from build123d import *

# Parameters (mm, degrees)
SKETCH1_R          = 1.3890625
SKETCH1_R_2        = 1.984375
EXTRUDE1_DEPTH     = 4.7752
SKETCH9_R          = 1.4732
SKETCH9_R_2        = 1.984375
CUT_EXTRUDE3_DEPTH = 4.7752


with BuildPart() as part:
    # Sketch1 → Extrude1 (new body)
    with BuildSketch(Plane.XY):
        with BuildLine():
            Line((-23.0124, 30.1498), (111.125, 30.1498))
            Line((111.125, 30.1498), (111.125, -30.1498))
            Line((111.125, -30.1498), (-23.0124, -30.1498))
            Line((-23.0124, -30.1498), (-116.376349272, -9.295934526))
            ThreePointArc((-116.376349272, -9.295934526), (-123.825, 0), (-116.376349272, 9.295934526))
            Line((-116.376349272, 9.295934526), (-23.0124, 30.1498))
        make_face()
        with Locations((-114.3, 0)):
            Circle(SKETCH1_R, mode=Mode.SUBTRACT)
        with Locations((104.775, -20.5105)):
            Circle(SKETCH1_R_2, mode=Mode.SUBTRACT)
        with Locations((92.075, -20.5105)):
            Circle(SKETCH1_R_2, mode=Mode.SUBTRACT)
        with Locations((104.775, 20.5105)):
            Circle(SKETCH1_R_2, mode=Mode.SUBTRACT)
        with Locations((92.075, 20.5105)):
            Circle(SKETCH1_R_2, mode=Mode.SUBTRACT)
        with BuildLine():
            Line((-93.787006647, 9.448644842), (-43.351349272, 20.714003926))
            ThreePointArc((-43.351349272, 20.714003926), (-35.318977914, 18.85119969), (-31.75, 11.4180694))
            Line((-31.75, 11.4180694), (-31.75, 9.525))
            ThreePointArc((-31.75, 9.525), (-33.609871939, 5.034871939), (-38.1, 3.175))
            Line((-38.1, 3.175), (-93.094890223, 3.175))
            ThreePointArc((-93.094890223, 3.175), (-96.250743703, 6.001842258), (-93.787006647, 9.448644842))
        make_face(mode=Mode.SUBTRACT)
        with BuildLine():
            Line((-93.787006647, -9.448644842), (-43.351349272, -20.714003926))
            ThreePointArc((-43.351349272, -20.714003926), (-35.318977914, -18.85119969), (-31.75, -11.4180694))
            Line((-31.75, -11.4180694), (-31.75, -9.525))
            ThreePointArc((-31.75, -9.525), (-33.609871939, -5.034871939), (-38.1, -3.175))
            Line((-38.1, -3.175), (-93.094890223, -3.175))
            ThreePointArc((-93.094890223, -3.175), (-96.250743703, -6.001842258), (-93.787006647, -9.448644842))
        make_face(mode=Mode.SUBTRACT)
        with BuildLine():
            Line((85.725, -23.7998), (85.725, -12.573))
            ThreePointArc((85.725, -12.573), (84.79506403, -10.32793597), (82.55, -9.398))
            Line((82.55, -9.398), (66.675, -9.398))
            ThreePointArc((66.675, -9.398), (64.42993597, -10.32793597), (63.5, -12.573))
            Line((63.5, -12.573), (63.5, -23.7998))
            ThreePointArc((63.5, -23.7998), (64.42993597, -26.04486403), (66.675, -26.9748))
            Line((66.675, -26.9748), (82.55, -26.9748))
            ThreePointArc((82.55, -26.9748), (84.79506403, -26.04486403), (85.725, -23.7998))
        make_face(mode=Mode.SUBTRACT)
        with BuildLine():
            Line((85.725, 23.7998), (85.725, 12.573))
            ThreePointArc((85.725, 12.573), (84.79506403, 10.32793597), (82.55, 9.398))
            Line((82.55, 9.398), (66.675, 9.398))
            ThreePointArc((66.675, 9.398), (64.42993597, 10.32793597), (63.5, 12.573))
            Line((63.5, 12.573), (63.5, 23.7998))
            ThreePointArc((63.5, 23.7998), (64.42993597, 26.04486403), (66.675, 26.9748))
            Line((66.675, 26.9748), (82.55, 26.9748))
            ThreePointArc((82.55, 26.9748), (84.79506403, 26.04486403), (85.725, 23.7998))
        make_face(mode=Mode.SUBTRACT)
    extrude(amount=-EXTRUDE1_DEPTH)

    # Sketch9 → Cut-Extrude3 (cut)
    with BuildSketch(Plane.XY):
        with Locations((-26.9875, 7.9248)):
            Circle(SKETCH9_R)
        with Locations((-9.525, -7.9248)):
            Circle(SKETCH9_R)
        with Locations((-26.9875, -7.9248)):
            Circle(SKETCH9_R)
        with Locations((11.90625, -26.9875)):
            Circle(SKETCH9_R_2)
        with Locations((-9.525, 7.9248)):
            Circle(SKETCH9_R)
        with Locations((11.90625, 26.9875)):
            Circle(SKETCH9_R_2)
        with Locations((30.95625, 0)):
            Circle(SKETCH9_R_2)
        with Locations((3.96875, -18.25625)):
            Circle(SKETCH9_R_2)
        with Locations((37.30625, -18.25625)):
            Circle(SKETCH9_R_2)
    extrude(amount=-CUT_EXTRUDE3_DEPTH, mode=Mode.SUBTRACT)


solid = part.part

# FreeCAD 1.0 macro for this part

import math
import FreeCAD as App
import Part
import Sketcher
Q = App.Units.Quantity

doc = App.newDocument("Part")
body = doc.addObject("PartDesign::Body", "Body")

# Sketch on XY plane
sketch1 = body.newObject("Sketcher::SketchObject", "Sketch")
sketch1.AttachmentSupport = (doc.getObject("XY_Plane"), [""])
sketch1.MapMode = "FlatFace"
sketch1.addGeometry([
    Part.LineSegment(App.Vector(111.125, 30.1498, 0), App.Vector(-23.0124, 30.1498, 0)),  # 0
    Part.LineSegment(App.Vector(-23.0124, 30.1498, 0), App.Vector(-116.376349, 9.295935, 0)),  # 1
    Part.ArcOfCircle(Part.Circle(App.Vector(-114.3, 0, 0), App.Vector(0, 0, 1), 9.525), math.radians(102.59097), math.radians(257.40903)),  # 2
    Part.LineSegment(App.Vector(-116.376349, -9.295935, 0), App.Vector(-23.0124, -30.1498, 0)),  # 3
    Part.LineSegment(App.Vector(-23.0124, -30.1498, 0), App.Vector(111.125, -30.1498, 0)),  # 4
    Part.LineSegment(App.Vector(111.125, -30.1498, 0), App.Vector(111.125, 30.1498, 0)),  # 5
    Part.Circle(App.Vector(104.775, -20.5105, 0), App.Vector(0, 0, 1), 1.984375),  # 6
    Part.Circle(App.Vector(92.075, -20.5105, 0), App.Vector(0, 0, 1), 1.984375),  # 7
    Part.ArcOfCircle(Part.Circle(App.Vector(82.55, -23.7998, 0), App.Vector(0, 0, 1), 3.175), math.radians(-90), math.radians(0)),  # 8
    Part.LineSegment(App.Vector(82.55, -26.9748, 0), App.Vector(66.675, -26.9748, 0)),  # 9
    Part.ArcOfCircle(Part.Circle(App.Vector(66.675, -23.7998, 0), App.Vector(0, 0, 1), 3.175), math.radians(-180), math.radians(-90)),  # 10
    Part.LineSegment(App.Vector(63.5, -23.7998, 0), App.Vector(63.5, -12.573, 0)),  # 11
    Part.ArcOfCircle(Part.Circle(App.Vector(66.675, -12.573, 0), App.Vector(0, 0, 1), 3.175), math.radians(90), math.radians(180)),  # 12
    Part.LineSegment(App.Vector(66.675, -9.398, 0), App.Vector(82.55, -9.398, 0)),  # 13
    Part.ArcOfCircle(Part.Circle(App.Vector(82.55, -12.573, 0), App.Vector(0, 0, 1), 3.175), math.radians(0), math.radians(90)),  # 14
    Part.LineSegment(App.Vector(85.725, -12.573, 0), App.Vector(85.725, -23.7998, 0)),  # 15
    Part.ArcOfCircle(Part.Circle(App.Vector(-93.09489, -6.35, 0), App.Vector(0, 0, 1), 3.175), math.radians(90), math.radians(257.40903)),  # 16
    Part.LineSegment(App.Vector(-93.09489, -3.175, 0), App.Vector(-38.1, -3.175, 0)),  # 17
    Part.ArcOfCircle(Part.Circle(App.Vector(-38.1, -9.525, 0), App.Vector(0, 0, 1), 6.35), math.radians(0), math.radians(90)),  # 18
    Part.LineSegment(App.Vector(-31.75, -9.525, 0), App.Vector(-31.75, -11.418069, 0)),  # 19
    Part.ArcOfCircle(Part.Circle(App.Vector(-41.275, -11.418069, 0), App.Vector(0, 0, 1), 9.525), math.radians(-102.59097), math.radians(0)),  # 20
    Part.LineSegment(App.Vector(-43.351349, -20.714004, 0), App.Vector(-93.787007, -9.448645, 0)),  # 21
    Part.LineSegment(App.Vector(85.725, 23.7998, 0), App.Vector(85.725, 12.573, 0)),  # 22
    Part.ArcOfCircle(Part.Circle(App.Vector(82.55, 12.573, 0), App.Vector(0, 0, 1), 3.175), math.radians(-90), math.radians(0)),  # 23
    Part.LineSegment(App.Vector(82.55, 9.398, 0), App.Vector(66.675, 9.398, 0)),  # 24
    Part.ArcOfCircle(Part.Circle(App.Vector(66.675, 12.573, 0), App.Vector(0, 0, 1), 3.175), math.radians(-180), math.radians(-90)),  # 25
    Part.LineSegment(App.Vector(63.5, 12.573, 0), App.Vector(63.5, 23.7998, 0)),  # 26
    Part.ArcOfCircle(Part.Circle(App.Vector(66.675, 23.7998, 0), App.Vector(0, 0, 1), 3.175), math.radians(90), math.radians(180)),  # 27
    Part.LineSegment(App.Vector(66.675, 26.9748, 0), App.Vector(82.55, 26.9748, 0)),  # 28
    Part.ArcOfCircle(Part.Circle(App.Vector(82.55, 23.7998, 0), App.Vector(0, 0, 1), 3.175), math.radians(0), math.radians(90)),  # 29
    Part.Circle(App.Vector(104.775, 20.5105, 0), App.Vector(0, 0, 1), 1.984375),  # 30
    Part.Circle(App.Vector(92.075, 20.5105, 0), App.Vector(0, 0, 1), 1.984375),  # 31
    Part.Circle(App.Vector(-114.3, 0, 0), App.Vector(0, 0, 1), 1.389063),  # 32
    Part.LineSegment(App.Vector(-93.787007, 9.448645, 0), App.Vector(-43.351349, 20.714004, 0)),  # 33
    Part.ArcOfCircle(Part.Circle(App.Vector(-41.275, 11.418069, 0), App.Vector(0, 0, 1), 9.525), math.radians(0), math.radians(102.59097)),  # 34
    Part.LineSegment(App.Vector(-31.75, 11.418069, 0), App.Vector(-31.75, 9.525, 0)),  # 35
    Part.ArcOfCircle(Part.Circle(App.Vector(-38.1, 9.525, 0), App.Vector(0, 0, 1), 6.35), math.radians(-90), math.radians(0)),  # 36
    Part.LineSegment(App.Vector(-38.1, 3.175, 0), App.Vector(-93.09489, 3.175, 0)),  # 37
    Part.ArcOfCircle(Part.Circle(App.Vector(-93.09489, 6.35, 0), App.Vector(0, 0, 1), 3.175), math.radians(102.59097), math.radians(270)),  # 38
], False)
sketch1.addConstraint([
    Sketcher.Constraint("Coincident", 0, 2, 1, 1),
    Sketcher.Constraint("Tangent", 1, 2, 2, 1),
    Sketcher.Constraint("Tangent", 2, 2, 3, 1),
    Sketcher.Constraint("Coincident", 3, 2, 4, 1),
    Sketcher.Constraint("Coincident", 4, 2, 5, 1),
    Sketcher.Constraint("Coincident", 5, 2, 0, 1),
    Sketcher.Constraint("Tangent", 8, 1, 9, 1),
    Sketcher.Constraint("Tangent", 9, 2, 10, 2),
    Sketcher.Constraint("Tangent", 10, 1, 11, 1),
    Sketcher.Constraint("Tangent", 11, 2, 12, 2),
    Sketcher.Constraint("Tangent", 12, 1, 13, 1),
    Sketcher.Constraint("Tangent", 13, 2, 14, 2),
    Sketcher.Constraint("Tangent", 14, 1, 15, 1),
    Sketcher.Constraint("Tangent", 15, 2, 8, 2),
    Sketcher.Constraint("Tangent", 16, 1, 17, 1),
    Sketcher.Constraint("Tangent", 17, 2, 18, 2),
    Sketcher.Constraint("Tangent", 18, 1, 19, 1),
    Sketcher.Constraint("Tangent", 19, 2, 20, 2),
    Sketcher.Constraint("Tangent", 20, 1, 21, 1),
    Sketcher.Constraint("Tangent", 21, 2, 16, 2),
    Sketcher.Constraint("Tangent", 22, 2, 23, 2),
    Sketcher.Constraint("Tangent", 23, 1, 24, 1),
    Sketcher.Constraint("Tangent", 24, 2, 25, 2),
    Sketcher.Constraint("Tangent", 25, 1, 26, 1),
    Sketcher.Constraint("Tangent", 26, 2, 27, 2),
    Sketcher.Constraint("Tangent", 27, 1, 28, 1),
    Sketcher.Constraint("Tangent", 28, 2, 29, 2),
    Sketcher.Constraint("Tangent", 29, 1, 22, 1),
    Sketcher.Constraint("Tangent", 33, 2, 34, 2),
    Sketcher.Constraint("Tangent", 34, 1, 35, 1),
    Sketcher.Constraint("Tangent", 35, 2, 36, 2),
    Sketcher.Constraint("Tangent", 36, 1, 37, 1),
    Sketcher.Constraint("Tangent", 37, 2, 38, 2),
    Sketcher.Constraint("Tangent", 38, 1, 33, 1),
    Sketcher.Constraint("Horizontal", 0),
    Sketcher.Constraint("Horizontal", 4),
    Sketcher.Constraint("Vertical", 5),
    Sketcher.Constraint("Horizontal", 9),
    Sketcher.Constraint("Vertical", 11),
    Sketcher.Constraint("Horizontal", 13),
    Sketcher.Constraint("Vertical", 15),
    Sketcher.Constraint("Horizontal", 17),
    Sketcher.Constraint("Vertical", 19),
    Sketcher.Constraint("Vertical", 22),
    Sketcher.Constraint("Horizontal", 24),
    Sketcher.Constraint("Vertical", 26),
    Sketcher.Constraint("Horizontal", 28),
    Sketcher.Constraint("Vertical", 35),
    Sketcher.Constraint("Horizontal", 37),
    Sketcher.Constraint("Coincident", 32, 3, 2, 3),
    Sketcher.Constraint("Equal", 6, 7),
    Sketcher.Constraint("Equal", 8, 10),
    Sketcher.Constraint("Equal", 10, 12),
    Sketcher.Constraint("Equal", 12, 14),
    Sketcher.Constraint("Equal", 14, 16),
    Sketcher.Constraint("Equal", 2, 20),
    Sketcher.Constraint("Equal", 16, 23),
    Sketcher.Constraint("Equal", 23, 25),
    Sketcher.Constraint("Equal", 25, 27),
    Sketcher.Constraint("Equal", 27, 29),
    Sketcher.Constraint("Equal", 7, 30),
    Sketcher.Constraint("Equal", 30, 31),
    Sketcher.Constraint("Equal", 20, 34),
    Sketcher.Constraint("Equal", 18, 36),
    Sketcher.Constraint("Equal", 29, 38),
    Sketcher.Constraint("Symmetric", 14, 3, 23, 3, -1),
    Sketcher.Constraint("Symmetric", 10, 3, 27, 3, -1),
    Sketcher.Constraint("Symmetric", 6, 3, 30, 3, -1),
    Sketcher.Constraint("Symmetric", 7, 3, 31, 3, -1),
    Sketcher.Constraint("Symmetric", 20, 3, 34, 3, -1),
    Sketcher.Constraint("Symmetric", 16, 3, 38, 3, -1),
    Sketcher.Constraint("Symmetric", 1, 2, 2, 2, -1),
    Sketcher.Constraint("Parallel", 3, 21),
    Sketcher.Constraint("Horizontal", 6, 3, 7, 3),
    Sketcher.Constraint("Vertical", 0, 2, 3, 2),
    Sketcher.Constraint("Radius", 18, Q("0.25 in")),
    Sketcher.Constraint("Diameter", 6, Q("0.15625 in")),
    Sketcher.Constraint("Diameter", 32, Q("0.109375 in")),
    Sketcher.Constraint("Radius", 2, Q("0.375 in")),
    Sketcher.Constraint("Radius", 8, Q("0.125 in")),
    Sketcher.Constraint("DistanceX", 10, 3, 7, 3, Q("1 in")),
    Sketcher.Constraint("DistanceX", 2, 3, 18, 3, Q("3 in")),
    Sketcher.Constraint("DistanceX", 2, 3, -1, 1, Q("4.5 in")),
    Sketcher.Constraint("DistanceX", -1, 1, 10, 1, Q("2.5 in")),
    Sketcher.Constraint("DistanceX", 7, 3, 6, 3, Q("0.5 in")),
    Sketcher.Constraint("DistanceY", 16, 3, 38, 3, Q("0.5 in")),
    Sketcher.Constraint("DistanceX", 0, 2, 0, 1, Q("5.281 in")),
    Sketcher.Constraint("DistanceX", 9, 2, 9, 1, Q("0.625 in")),
    Sketcher.Constraint("DistanceY", 5, 1, 5, 2, Q("2.374 in")),
    Sketcher.Constraint("DistanceY", 11, 1, 11, 2, Q("0.442 in")),
    Sketcher.Constraint("DistanceY", 12, 1, -1, 1, Q("0.37 in")),
    Sketcher.Constraint("DistanceX", 6, 3, 4, 2, Q("0.25 in")),
    Sketcher.Constraint("DistanceY", 7, 3, 12, 3, Q("0.3125 in")),
    Sketcher.Constraint("DistanceX", 17, 1, 17, 2, Q("54.99489 mm")),
])
pad1 = body.newObject("PartDesign::Pad", "Pad")
pad1.Profile = sketch1
pad1.Length = Q("0.188 in")
pad1.Reversed = True

# Sketch on XY plane
sketch2 = body.newObject("Sketcher::SketchObject", "Sketch001")
sketch2.AttachmentSupport = (doc.getObject("XY_Plane"), [""])
sketch2.MapMode = "FlatFace"
sketch2.addGeometry([
    Part.Circle(App.Vector(-26.9875, 7.9248, 0), App.Vector(0, 0, 1), 1.4732),  # 0
    Part.Circle(App.Vector(-9.525, -7.9248, 0), App.Vector(0, 0, 1), 1.4732),  # 1
    Part.Circle(App.Vector(-26.9875, -7.9248, 0), App.Vector(0, 0, 1), 1.4732),  # 2
    Part.Circle(App.Vector(11.90625, -26.9875, 0), App.Vector(0, 0, 1), 1.984375),  # 3
    Part.Circle(App.Vector(-9.525, 7.9248, 0), App.Vector(0, 0, 1), 1.4732),  # 4
    Part.Circle(App.Vector(11.90625, 26.9875, 0), App.Vector(0, 0, 1), 1.984375),  # 5
    Part.Circle(App.Vector(30.95625, 0, 0), App.Vector(0, 0, 1), 1.984375),  # 6
    Part.Circle(App.Vector(3.96875, -18.25625, 0), App.Vector(0, 0, 1), 1.984375),  # 7
    Part.Circle(App.Vector(37.30625, -18.25625, 0), App.Vector(0, 0, 1), 1.984375),  # 8
], False)
sketch2.addConstraint([
    Sketcher.Constraint("Equal", 0, 1),
    Sketcher.Constraint("Equal", 1, 2),
    Sketcher.Constraint("Equal", 2, 4),
    Sketcher.Constraint("Equal", 3, 5),
    Sketcher.Constraint("Equal", 5, 6),
    Sketcher.Constraint("Equal", 6, 7),
    Sketcher.Constraint("Equal", 7, 8),
    Sketcher.Constraint("Symmetric", 0, 3, 2, 3, -1),
    Sketcher.Constraint("Symmetric", 1, 3, 4, 3, -1),
    Sketcher.Constraint("Symmetric", 3, 3, 5, 3, -1),
    Sketcher.Constraint("PointOnObject", 6, 3, -1),
    Sketcher.Constraint("Horizontal", 1, 3, 2, 3),
    Sketcher.Constraint("Horizontal", 7, 3, 8, 3),
    Sketcher.Constraint("Diameter", 0, Q("0.116 in")),
    Sketcher.Constraint("Diameter", 3, Q("0.15625 in")),
    Sketcher.Constraint("DistanceX", 3, 3, 8, 3, Q("1 in")),
    Sketcher.Constraint("DistanceX", 3, 3, 6, 3, Q("0.75 in")),
    Sketcher.Constraint("DistanceX", 0, 3, -1, 1, Q("1.0625 in")),
    Sketcher.Constraint("DistanceY", -1, 1, 0, 3, Q("0.312 in")),
    Sketcher.Constraint("DistanceX", 1, 3, -1, 1, Q("0.375 in")),
    Sketcher.Constraint("DistanceX", -1, 1, 3, 3, Q("0.46875 in")),
    Sketcher.Constraint("DistanceY", 3, 3, -1, 1, Q("1.0625 in")),
    Sketcher.Constraint("DistanceX", -1, 1, 7, 3, Q("0.15625 in")),
    Sketcher.Constraint("DistanceY", 7, 3, -1, 1, Q("0.71875 in")),
])
pocket1 = body.newObject("PartDesign::Pocket", "Pocket")
pocket1.Profile = sketch2
pocket1.Length = Q("0.188 in")

doc.recompute()
